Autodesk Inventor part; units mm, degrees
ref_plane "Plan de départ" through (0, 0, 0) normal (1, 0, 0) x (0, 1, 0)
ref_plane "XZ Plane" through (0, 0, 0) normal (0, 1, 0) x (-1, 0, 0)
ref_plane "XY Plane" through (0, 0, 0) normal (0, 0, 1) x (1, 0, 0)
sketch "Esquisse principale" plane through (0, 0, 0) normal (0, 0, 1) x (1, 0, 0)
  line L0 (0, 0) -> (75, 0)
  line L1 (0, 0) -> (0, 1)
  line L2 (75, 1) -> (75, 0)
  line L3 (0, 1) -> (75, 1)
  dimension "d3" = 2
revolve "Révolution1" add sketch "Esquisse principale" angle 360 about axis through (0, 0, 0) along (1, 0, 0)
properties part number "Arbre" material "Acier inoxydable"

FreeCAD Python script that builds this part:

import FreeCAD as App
import Part
import Sketcher

V = App.Vector


def add_polygon(sketch, points):
    """Adds a closed chain of lines whose ends are joined by coincident constraints."""
    first, n = sketch.GeometryCount, len(points)
    for a, b in zip(points, points[1:] + points[:1]):
        sketch.addGeometry(Part.LineSegment(App.Vector(*a, 0), App.Vector(*b, 0)), False)
    for i in range(n):
        sketch.addConstraint(Sketcher.Constraint("Coincident", first + i, 2, first + (i + 1) % n, 1))

doc = App.newDocument("Part")
body = doc.addObject("PartDesign::Body", "Body")

# Sketch on XY plane
sketch1 = doc.addObject("Sketcher::SketchObject", "Sketch")
body.addObject(sketch1)
sketch1.AttachmentSupport = (doc.XY_Plane, [""])
sketch1.MapMode = "FlatFace"
add_polygon(sketch1, [(0, 1), (0, 0), (75, 0), (75, 1)])  # lines 0-3
sketch1.addConstraint(Sketcher.Constraint("Vertical", 0))
sketch1.addConstraint(Sketcher.Constraint("Horizontal", 1))
sketch1.addConstraint(Sketcher.Constraint("Vertical", 2))
sketch1.addConstraint(Sketcher.Constraint("Horizontal", 3))
sketch1.addConstraint(Sketcher.Constraint("Coincident", 0, 2, -1, 1))
sketch1.addConstraint(Sketcher.Constraint("DistanceX", 1, 1, 1, 2, 75.0))
sketch1.addConstraint(Sketcher.Constraint("DistanceY", 0, 2, 0, 1, 1.0))
revolution = doc.addObject("PartDesign::Revolution", "Revolution")
body.addObject(revolution)
revolution.Profile = sketch1
revolution.ReferenceAxis = (sketch1, ["H_Axis"])
revolution.Angle = 360

doc.recompute()
